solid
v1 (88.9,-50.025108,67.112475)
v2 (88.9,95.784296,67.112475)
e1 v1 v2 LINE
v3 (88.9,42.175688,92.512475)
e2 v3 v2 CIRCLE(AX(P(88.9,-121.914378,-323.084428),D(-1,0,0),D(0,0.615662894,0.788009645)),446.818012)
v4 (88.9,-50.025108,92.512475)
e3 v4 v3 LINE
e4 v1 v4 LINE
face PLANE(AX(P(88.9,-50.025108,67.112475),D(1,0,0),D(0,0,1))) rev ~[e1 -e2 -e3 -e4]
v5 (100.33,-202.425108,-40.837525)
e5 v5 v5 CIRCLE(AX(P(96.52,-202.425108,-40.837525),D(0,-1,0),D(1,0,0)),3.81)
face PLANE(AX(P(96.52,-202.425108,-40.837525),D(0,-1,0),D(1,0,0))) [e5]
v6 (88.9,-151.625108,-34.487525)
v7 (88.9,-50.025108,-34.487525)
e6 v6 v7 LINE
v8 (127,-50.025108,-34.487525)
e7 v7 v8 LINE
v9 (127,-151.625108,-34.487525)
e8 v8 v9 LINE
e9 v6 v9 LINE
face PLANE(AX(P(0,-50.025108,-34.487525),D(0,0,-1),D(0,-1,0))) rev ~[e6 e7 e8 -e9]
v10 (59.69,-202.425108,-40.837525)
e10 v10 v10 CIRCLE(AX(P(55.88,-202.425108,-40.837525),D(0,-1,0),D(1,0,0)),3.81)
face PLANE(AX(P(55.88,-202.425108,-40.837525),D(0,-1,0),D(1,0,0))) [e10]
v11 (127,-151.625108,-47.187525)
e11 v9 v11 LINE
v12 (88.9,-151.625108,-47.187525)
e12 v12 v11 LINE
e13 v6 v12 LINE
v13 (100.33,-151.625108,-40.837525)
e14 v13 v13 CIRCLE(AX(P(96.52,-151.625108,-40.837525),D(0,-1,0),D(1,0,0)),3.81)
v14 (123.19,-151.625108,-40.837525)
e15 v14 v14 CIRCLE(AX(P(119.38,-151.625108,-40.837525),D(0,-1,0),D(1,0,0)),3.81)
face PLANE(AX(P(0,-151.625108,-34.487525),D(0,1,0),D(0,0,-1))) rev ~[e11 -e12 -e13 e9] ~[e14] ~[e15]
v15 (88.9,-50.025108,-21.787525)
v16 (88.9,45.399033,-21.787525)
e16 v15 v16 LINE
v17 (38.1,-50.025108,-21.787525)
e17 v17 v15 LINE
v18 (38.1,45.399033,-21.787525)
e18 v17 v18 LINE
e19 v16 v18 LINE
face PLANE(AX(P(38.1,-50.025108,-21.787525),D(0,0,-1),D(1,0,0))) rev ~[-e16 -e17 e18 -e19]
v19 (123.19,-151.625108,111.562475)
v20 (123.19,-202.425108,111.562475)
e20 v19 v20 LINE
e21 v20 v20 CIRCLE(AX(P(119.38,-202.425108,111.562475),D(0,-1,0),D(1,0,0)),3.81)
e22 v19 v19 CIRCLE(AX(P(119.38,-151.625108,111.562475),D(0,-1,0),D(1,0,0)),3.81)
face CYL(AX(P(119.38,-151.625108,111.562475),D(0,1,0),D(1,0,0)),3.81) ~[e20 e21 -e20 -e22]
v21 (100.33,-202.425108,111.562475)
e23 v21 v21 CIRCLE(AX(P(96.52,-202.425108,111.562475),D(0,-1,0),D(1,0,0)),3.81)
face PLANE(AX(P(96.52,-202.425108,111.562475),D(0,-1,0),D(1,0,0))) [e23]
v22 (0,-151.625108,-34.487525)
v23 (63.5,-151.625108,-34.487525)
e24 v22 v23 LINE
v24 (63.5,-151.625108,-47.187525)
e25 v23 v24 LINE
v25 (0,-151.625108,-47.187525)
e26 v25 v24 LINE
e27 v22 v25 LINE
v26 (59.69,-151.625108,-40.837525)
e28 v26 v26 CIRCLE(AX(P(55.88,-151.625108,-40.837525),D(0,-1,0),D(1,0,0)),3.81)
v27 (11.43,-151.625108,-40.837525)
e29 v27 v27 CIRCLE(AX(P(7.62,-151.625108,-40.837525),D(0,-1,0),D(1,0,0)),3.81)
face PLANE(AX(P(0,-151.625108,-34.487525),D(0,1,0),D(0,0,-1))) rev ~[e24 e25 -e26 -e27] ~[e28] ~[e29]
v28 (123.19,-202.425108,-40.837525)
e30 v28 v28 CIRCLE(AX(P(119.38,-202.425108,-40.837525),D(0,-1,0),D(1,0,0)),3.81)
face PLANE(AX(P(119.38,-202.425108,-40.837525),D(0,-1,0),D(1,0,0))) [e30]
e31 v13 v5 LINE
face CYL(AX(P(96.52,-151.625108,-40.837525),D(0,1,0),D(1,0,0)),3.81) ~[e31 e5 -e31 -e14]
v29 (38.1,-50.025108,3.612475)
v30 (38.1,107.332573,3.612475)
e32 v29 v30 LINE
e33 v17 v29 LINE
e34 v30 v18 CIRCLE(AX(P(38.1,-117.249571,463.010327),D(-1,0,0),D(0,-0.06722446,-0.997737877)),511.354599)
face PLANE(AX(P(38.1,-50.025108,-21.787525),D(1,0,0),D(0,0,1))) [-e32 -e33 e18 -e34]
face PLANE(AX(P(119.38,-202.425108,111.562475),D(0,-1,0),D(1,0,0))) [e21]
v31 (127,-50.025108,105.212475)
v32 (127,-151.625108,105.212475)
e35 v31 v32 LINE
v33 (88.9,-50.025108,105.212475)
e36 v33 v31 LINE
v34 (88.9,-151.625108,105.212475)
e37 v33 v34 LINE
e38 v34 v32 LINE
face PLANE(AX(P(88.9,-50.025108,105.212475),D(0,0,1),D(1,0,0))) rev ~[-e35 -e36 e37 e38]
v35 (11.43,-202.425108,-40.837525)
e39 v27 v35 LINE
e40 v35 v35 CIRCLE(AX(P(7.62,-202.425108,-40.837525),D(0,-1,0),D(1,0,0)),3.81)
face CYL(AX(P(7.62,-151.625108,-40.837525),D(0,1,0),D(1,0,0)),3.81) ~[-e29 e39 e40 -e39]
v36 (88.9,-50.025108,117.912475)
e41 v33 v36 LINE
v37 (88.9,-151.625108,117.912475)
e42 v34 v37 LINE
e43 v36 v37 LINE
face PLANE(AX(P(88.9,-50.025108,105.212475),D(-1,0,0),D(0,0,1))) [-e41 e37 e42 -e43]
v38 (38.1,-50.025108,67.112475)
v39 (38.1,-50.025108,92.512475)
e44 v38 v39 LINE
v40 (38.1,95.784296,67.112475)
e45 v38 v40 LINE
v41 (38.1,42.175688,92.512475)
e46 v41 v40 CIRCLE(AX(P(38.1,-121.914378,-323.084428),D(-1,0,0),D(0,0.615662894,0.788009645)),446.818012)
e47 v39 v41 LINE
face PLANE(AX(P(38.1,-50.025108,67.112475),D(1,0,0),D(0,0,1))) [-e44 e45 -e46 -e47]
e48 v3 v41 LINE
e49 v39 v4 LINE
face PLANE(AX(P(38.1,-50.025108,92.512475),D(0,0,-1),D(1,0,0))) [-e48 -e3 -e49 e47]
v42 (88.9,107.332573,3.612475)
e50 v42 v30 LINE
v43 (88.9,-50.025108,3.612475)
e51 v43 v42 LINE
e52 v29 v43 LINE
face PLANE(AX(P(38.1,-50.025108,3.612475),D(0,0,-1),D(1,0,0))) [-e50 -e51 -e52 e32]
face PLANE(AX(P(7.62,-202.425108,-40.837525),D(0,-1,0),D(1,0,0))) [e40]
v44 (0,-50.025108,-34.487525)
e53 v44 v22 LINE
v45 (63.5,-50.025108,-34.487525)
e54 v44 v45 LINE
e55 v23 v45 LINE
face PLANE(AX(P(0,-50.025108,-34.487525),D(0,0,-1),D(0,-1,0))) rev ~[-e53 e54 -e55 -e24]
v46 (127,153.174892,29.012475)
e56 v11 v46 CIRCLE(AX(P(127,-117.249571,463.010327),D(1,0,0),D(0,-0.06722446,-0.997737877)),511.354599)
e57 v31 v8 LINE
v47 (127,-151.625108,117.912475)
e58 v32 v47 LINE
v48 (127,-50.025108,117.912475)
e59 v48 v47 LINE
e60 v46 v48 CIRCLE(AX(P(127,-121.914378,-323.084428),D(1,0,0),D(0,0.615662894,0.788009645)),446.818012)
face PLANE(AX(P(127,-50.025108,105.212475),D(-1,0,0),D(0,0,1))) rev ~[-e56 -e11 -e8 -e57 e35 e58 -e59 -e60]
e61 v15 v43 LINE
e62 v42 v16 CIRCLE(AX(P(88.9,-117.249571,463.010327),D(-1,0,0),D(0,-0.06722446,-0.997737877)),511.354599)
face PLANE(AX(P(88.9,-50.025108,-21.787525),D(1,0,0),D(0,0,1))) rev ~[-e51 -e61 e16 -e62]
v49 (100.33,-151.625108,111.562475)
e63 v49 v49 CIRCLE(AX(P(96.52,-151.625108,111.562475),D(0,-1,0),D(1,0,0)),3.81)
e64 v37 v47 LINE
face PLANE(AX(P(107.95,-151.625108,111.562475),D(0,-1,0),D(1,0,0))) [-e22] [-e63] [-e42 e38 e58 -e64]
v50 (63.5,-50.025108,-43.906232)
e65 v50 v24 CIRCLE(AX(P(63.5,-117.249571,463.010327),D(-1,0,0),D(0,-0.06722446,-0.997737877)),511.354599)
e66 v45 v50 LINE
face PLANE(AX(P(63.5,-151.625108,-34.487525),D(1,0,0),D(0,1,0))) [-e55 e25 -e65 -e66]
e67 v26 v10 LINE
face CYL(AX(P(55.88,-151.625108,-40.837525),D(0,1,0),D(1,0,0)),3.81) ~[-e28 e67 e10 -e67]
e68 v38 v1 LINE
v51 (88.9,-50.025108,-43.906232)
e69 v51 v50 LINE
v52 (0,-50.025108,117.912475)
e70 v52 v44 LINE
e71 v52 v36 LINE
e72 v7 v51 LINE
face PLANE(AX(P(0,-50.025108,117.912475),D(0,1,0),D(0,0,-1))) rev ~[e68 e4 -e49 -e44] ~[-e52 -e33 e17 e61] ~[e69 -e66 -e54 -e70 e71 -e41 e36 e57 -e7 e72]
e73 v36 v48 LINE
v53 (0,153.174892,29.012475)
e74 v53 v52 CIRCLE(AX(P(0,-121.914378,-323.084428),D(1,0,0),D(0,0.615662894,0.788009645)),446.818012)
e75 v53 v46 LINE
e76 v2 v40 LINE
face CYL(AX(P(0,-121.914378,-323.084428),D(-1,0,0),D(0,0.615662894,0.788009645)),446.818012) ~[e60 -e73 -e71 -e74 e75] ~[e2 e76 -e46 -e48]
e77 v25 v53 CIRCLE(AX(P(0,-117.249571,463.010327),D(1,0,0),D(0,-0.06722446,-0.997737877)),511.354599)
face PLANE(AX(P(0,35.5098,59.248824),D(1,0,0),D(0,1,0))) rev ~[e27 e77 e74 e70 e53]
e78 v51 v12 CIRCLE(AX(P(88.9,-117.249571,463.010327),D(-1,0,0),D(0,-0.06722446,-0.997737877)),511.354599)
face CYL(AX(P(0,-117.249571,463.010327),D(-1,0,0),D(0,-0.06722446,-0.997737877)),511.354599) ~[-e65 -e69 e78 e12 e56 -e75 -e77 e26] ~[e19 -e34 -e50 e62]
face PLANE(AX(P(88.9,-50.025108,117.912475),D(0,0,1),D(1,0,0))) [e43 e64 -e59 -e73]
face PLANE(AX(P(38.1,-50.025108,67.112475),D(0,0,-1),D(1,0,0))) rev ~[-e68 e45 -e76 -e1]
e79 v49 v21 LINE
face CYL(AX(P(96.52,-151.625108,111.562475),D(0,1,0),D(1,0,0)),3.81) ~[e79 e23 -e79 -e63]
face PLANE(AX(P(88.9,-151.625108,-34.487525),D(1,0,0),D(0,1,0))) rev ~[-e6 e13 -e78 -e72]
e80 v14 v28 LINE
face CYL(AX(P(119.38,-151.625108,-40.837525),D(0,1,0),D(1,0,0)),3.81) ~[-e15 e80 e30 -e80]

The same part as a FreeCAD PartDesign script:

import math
import FreeCAD as App
import Part
import Sketcher

V = App.Vector
Q = App.Units.Quantity


def add_polygon(sketch, points):
    """Adds a closed chain of lines whose ends are joined by coincident constraints."""
    first, n = sketch.GeometryCount, len(points)
    for a, b in zip(points, points[1:] + points[:1]):
        sketch.addGeometry(Part.LineSegment(App.Vector(*a, 0), App.Vector(*b, 0)), False)
    for i in range(n):
        sketch.addConstraint(Sketcher.Constraint("Coincident", first + i, 2, first + (i + 1) % n, 1))

doc = App.newDocument("Part")
body = doc.addObject("PartDesign::Body", "Body")

# Sketch on YZ plane
sketch1 = body.newObject("Sketcher::SketchObject", "Sketch")
sketch1.AttachmentSupport = (doc.getObject("YZ_Plane"), [""])
sketch1.MapMode = "FlatFace"
sketch1.addGeometry([
    Part.LineSegment(V(-50, 118, 0), V(-50, -34, 0)),  # 0
    Part.LineSegment(V(-50, -34, 0), V(-152, -34, 0)),  # 1
    Part.LineSegment(V(-152, -34, 0), V(-152, -47, 0)),  # 2
    Part.ArcOfCircle(Part.Circle(V(-117, 463, 0), V(0, 0, 1), 511), math.radians(-94), math.radians(-58)),  # 3
    Part.ArcOfCircle(Part.Circle(V(-122, -323, 0), V(0, 0, 1), 447), math.radians(52), math.radians(81)),  # 4
], False)
sketch1.addConstraint([
    Sketcher.Constraint("Coincident", 0, 2, 1, 1),
    Sketcher.Constraint("Coincident", 1, 2, 2, 1),
    Sketcher.Constraint("Coincident", 2, 2, 3, 1),
    Sketcher.Constraint("Coincident", 3, 2, 4, 1),
    Sketcher.Constraint("Coincident", 4, 2, 0, 1),
    Sketcher.Constraint("Vertical", 0),
    Sketcher.Constraint("Horizontal", 1),
    Sketcher.Constraint("Vertical", 2),
    Sketcher.Constraint("DistanceX", 1, 2, 1, 1, Q("4 in")),
    Sketcher.Constraint("DistanceY", 0, 2, 0, 1, Q("6 in")),
    Sketcher.Constraint("DistanceY", 2, 2, 2, 1, Q("0.5 in")),
    Sketcher.Constraint("Radius", 3, 511.354599),
    Sketcher.Constraint("Radius", 4, 446.818012),
    Sketcher.Constraint("DistanceX", 3, 3, -1, 1, 117.249571),
    Sketcher.Constraint("DistanceX", 4, 3, -1, 1, 121.914378),
    Sketcher.Constraint("DistanceX", 0, 2, -1, 1, 50.025108),
    Sketcher.Constraint("DistanceY", -1, 1, 3, 3, 463.010327),
])
pad1 = body.newObject("PartDesign::Pad", "Pad")
pad1.Profile = sketch1
pad1.Length = Q("5 in")

# Sketch on XY plane
sketch2 = body.newObject("Sketcher::SketchObject", "Sketch001")
sketch2.AttachmentSupport = (doc.getObject("XY_Plane"), [""])
sketch2.MapMode = "FlatFace"
sketch2.AttachmentOffset = App.Placement(V(0, 0, -34.487525), App.Rotation())
add_polygon(sketch2, [(64, -50), (64, -152), (89, -152), (89, -50)])  # lines 0-3
sketch2.addConstraint([
    Sketcher.Constraint("Vertical", 0),
    Sketcher.Constraint("Horizontal", 1),
    Sketcher.Constraint("Vertical", 2),
    Sketcher.Constraint("Horizontal", 3),
    Sketcher.Constraint("DistanceX", 1, 1, 1, 2, Q("1 in")),
    Sketcher.Constraint("DistanceY", 0, 2, 0, 1, Q("4 in")),
    Sketcher.Constraint("DistanceX", -1, 1, 0, 2, Q("2.5 in")),
    Sketcher.Constraint("DistanceY", 0, 2, -1, 1, 151.625108),
])
pocket1 = body.newObject("PartDesign::Pocket", "Pocket")
pocket1.Profile = sketch2
pocket1.Length = Q("1 in")

# Sketch on XZ plane
sketch3 = body.newObject("Sketcher::SketchObject", "Sketch002")
sketch3.AttachmentSupport = (doc.getObject("XZ_Plane"), [""])
sketch3.MapMode = "FlatFace"
sketch3.AttachmentOffset = App.Placement(V(0, 0, 50.025108), App.Rotation())
add_polygon(sketch3, [(38, 93), (38, 67), (89, 67), (89, 93)])  # lines 0-3
add_polygon(sketch3, [(38, 4), (38, -22), (89, -22), (89, 4)])  # lines 4-7
sketch3.addConstraint([
    Sketcher.Constraint("Vertical", 0),
    Sketcher.Constraint("Horizontal", 1),
    Sketcher.Constraint("Vertical", 2),
    Sketcher.Constraint("Horizontal", 3),
    Sketcher.Constraint("Vertical", 4),
    Sketcher.Constraint("Horizontal", 5),
    Sketcher.Constraint("Vertical", 6),
    Sketcher.Constraint("Horizontal", 7),
    Sketcher.Constraint("Vertical", 3, 2, 4, 2),
    Sketcher.Constraint("Vertical", 2, 2, 5, 2),
    Sketcher.Constraint("Equal", 2, 4),
    Sketcher.Constraint("DistanceX", 1, 1, 1, 2, Q("2 in")),
    Sketcher.Constraint("DistanceY", 0, 2, 0, 1, Q("1 in")),
    Sketcher.Constraint("DistanceX", -1, 1, 0, 2, Q("1.5 in")),
    Sketcher.Constraint("DistanceY", 4, 2, 0, 2, Q("3.5 in")),
    Sketcher.Constraint("DistanceY", -1, 1, 0, 2, 67.112475),
])
pocket2 = body.newObject("PartDesign::Pocket", "Pocket001")
pocket2.Profile = sketch3
pocket2.Length = Q("8 in")

# Sketch on XZ plane
sketch4 = body.newObject("Sketcher::SketchObject", "Sketch003")
sketch4.AttachmentSupport = (doc.getObject("XZ_Plane"), [""])
sketch4.MapMode = "FlatFace"
sketch4.AttachmentOffset = App.Placement(V(0, 0, 151.625108), App.Rotation())
sketch4.addGeometry([
    Part.Circle(V(96.5, -40.8, 0), V(0, 0, 1), 3.8),
    Part.Circle(V(119.4, -40.8, 0), V(0, 0, 1), 3.8),
], False)
sketch4.addConstraint([
    Sketcher.Constraint("Equal", 0, 1),
    Sketcher.Constraint("Horizontal", 0, 3, 1, 3),
    Sketcher.Constraint("Diameter", 0, Q("0.3 in")),
    Sketcher.Constraint("DistanceX", -1, 1, 0, 3, Q("3.8 in")),
    Sketcher.Constraint("DistanceX", -1, 1, 1, 3, Q("4.7 in")),
    Sketcher.Constraint("DistanceY", 0, 3, -1, 1, 40.837525),
])
pad2 = body.newObject("PartDesign::Pad", "Pad001")
pad2.Profile = sketch4
pad2.Length = Q("2 in")

# Sketch on XZ plane
sketch5 = body.newObject("Sketcher::SketchObject", "Sketch004")
sketch5.AttachmentSupport = (doc.getObject("XZ_Plane"), [""])
sketch5.MapMode = "FlatFace"
sketch5.AttachmentOffset = App.Placement(V(0, 0, 151.625108), App.Rotation())
sketch5.addGeometry([
    Part.Circle(V(7.6, -40.8, 0), V(0, 0, 1), 3.8),
    Part.Circle(V(55.9, -40.8, 0), V(0, 0, 1), 3.8),
], False)
sketch5.addConstraint([
    Sketcher.Constraint("Equal", 0, 1),
    Sketcher.Constraint("Horizontal", 0, 3, 1, 3),
    Sketcher.Constraint("Diameter", 0, Q("0.3 in")),
    Sketcher.Constraint("DistanceX", -1, 1, 0, 3, Q("0.3 in")),
    Sketcher.Constraint("DistanceX", -1, 1, 1, 3, Q("2.2 in")),
    Sketcher.Constraint("DistanceY", 0, 3, -1, 1, 40.837525),
])
pad3 = body.newObject("PartDesign::Pad", "Pad002")
pad3.Profile = sketch5
pad3.Length = Q("2 in")

# Sketch on XZ plane
sketch6 = body.newObject("Sketcher::SketchObject", "Sketch005")
sketch6.AttachmentSupport = (doc.getObject("XZ_Plane"), [""])
sketch6.MapMode = "FlatFace"
sketch6.AttachmentOffset = App.Placement(V(0, 0, 50.025108), App.Rotation())
add_polygon(sketch6, [(89, 118), (89, 105), (127, 105), (127, 118)])  # lines 0-3
sketch6.addConstraint([
    Sketcher.Constraint("Vertical", 0),
    Sketcher.Constraint("Horizontal", 1),
    Sketcher.Constraint("Vertical", 2),
    Sketcher.Constraint("Horizontal", 3),
    Sketcher.Constraint("DistanceX", 1, 1, 1, 2, Q("1.5 in")),
    Sketcher.Constraint("DistanceY", 0, 2, 0, 1, Q("0.5 in")),
    Sketcher.Constraint("DistanceX", -1, 1, 1, 2, Q("5 in")),
    Sketcher.Constraint("DistanceY", -1, 1, 0, 2, 105.212475),
])
pad4 = body.newObject("PartDesign::Pad", "Pad003")
pad4.Profile = sketch6
pad4.Length = Q("4 in")

# Sketch on XZ plane
sketch7 = body.newObject("Sketcher::SketchObject", "Sketch006")
sketch7.AttachmentSupport = (doc.getObject("XZ_Plane"), [""])
sketch7.MapMode = "FlatFace"
sketch7.AttachmentOffset = App.Placement(V(0, 0, 151.625108), App.Rotation())
sketch7.addGeometry([
    Part.Circle(V(96.5, 111.6, 0), V(0, 0, 1), 3.8),
    Part.Circle(V(119.4, 111.6, 0), V(0, 0, 1), 3.8),
], False)
sketch7.addConstraint([
    Sketcher.Constraint("Equal", 0, 1),
    Sketcher.Constraint("Horizontal", 0, 3, 1, 3),
    Sketcher.Constraint("Diameter", 0, Q("0.3 in")),
    Sketcher.Constraint("DistanceX", -1, 1, 0, 3, Q("3.8 in")),
    Sketcher.Constraint("DistanceX", -1, 1, 1, 3, Q("4.7 in")),
    Sketcher.Constraint("DistanceY", -1, 1, 0, 3, 111.562475),
])
pad5 = body.newObject("PartDesign::Pad", "Pad004")
pad5.Profile = sketch7
pad5.Length = Q("2 in")

doc.recompute()
